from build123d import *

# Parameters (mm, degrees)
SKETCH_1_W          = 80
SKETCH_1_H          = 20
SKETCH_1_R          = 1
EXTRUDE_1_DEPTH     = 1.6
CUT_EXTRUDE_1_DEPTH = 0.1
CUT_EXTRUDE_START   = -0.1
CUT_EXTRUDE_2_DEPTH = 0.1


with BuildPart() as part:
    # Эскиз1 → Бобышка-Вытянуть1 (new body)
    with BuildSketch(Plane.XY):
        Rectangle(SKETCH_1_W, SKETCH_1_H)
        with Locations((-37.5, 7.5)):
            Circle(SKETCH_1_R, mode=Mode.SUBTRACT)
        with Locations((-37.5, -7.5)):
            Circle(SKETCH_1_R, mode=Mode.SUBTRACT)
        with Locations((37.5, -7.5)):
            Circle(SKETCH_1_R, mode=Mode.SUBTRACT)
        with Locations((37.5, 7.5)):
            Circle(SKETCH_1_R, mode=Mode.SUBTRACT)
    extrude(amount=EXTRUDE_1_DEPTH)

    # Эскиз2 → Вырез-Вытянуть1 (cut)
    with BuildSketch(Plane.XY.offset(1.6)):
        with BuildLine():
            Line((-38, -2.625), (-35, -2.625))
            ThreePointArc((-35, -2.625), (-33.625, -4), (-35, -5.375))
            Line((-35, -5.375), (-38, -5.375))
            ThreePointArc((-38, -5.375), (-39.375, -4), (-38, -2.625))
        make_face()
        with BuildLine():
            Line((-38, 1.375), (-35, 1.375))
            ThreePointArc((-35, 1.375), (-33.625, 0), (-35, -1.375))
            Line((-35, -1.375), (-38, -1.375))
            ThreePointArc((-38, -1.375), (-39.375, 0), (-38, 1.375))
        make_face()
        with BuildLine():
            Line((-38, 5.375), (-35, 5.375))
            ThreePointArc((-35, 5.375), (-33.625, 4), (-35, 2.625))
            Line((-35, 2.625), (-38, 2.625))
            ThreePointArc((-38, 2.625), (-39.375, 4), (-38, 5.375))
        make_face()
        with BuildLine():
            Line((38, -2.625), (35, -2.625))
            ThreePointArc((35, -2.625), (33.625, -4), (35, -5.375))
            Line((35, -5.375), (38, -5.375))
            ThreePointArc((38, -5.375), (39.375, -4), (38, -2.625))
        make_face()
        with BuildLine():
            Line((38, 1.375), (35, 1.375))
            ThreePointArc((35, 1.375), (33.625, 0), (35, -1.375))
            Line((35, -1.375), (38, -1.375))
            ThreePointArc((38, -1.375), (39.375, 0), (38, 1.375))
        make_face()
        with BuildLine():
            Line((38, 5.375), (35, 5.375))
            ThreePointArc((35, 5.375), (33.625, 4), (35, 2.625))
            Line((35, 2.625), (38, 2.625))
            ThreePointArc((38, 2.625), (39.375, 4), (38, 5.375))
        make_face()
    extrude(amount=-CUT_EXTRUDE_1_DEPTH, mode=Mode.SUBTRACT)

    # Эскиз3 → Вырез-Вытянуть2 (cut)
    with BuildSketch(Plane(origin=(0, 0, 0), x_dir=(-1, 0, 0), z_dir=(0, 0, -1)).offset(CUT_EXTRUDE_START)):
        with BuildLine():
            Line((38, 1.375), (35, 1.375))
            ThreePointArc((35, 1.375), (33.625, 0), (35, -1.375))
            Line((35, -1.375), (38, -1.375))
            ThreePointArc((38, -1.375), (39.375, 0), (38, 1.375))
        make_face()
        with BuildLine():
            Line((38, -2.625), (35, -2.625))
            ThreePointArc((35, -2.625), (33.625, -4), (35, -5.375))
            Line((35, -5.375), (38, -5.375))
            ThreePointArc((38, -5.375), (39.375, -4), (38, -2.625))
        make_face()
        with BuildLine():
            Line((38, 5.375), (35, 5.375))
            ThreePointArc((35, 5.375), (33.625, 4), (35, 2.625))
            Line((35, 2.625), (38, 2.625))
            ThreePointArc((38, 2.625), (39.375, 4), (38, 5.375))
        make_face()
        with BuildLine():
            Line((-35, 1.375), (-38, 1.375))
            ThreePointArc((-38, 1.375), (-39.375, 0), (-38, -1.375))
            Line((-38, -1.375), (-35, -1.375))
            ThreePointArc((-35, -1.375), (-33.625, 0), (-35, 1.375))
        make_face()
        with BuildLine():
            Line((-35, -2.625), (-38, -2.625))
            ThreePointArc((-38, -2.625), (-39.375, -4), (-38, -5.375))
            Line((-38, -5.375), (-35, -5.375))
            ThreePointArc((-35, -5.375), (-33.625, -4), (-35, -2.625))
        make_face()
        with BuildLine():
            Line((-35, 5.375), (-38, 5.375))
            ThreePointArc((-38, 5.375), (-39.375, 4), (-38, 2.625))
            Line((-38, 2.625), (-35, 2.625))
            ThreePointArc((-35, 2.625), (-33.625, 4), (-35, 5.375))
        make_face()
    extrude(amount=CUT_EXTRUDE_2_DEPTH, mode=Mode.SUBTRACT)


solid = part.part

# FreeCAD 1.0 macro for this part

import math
import FreeCAD as App
import Part
import Sketcher

V = App.Vector

doc = App.newDocument("Part")
params = doc.addObject("Spreadsheet::Sheet", "Params")
for row, (alias, value) in enumerate([
    ("sketch1_diameter", "2 mm"),
    ("sketch1_width", "80 mm"),
    ("sketch1_height", "20 mm"),
    ("pad1_length", "1.6 mm"),
    ("sketch2_width", "3 mm"),
    ("pocket1_length", "0.1 mm"),
    ("sketch3_width", "3 mm"),
    ("pocket2_length", "0.1 mm"),
], start=1):
    params.set(f"A{row}", alias)
    params.set(f"B{row}", "=" + value)
    params.setAlias(f"B{row}", alias)

body = doc.addObject("PartDesign::Body", "Body")

sketch1 = doc.addObject("Sketcher::SketchObject", "Sketch")
body.addObject(sketch1)
sketch1.AttachmentSupport = (doc.XY_Plane, [""])
sketch1.MapMode = "FlatFace"
sketch1.addGeometry([
    Part.LineSegment(V(-40, 10, 0), V(-40, -10, 0)),
    Part.LineSegment(V(-40, -10, 0), V(40, -10, 0)),
    Part.LineSegment(V(40, -10, 0), V(40, 10, 0)),
    Part.LineSegment(V(40, 10, 0), V(-40, 10, 0)),
    Part.Circle(V(-37.5, -7.5, 0), V(0, 0, 1), 1),
    Part.Circle(V(37.5, -7.5, 0), V(0, 0, 1), 1),
    Part.Circle(V(-37.5, 7.5, 0), V(0, 0, 1), 1),
    Part.Circle(V(37.5, 7.5, 0), V(0, 0, 1), 1),
], False)
sketch1.addConstraint([
    Sketcher.Constraint("Coincident", 0, 2, 1, 1),
    Sketcher.Constraint("Coincident", 1, 2, 2, 1),
    Sketcher.Constraint("Coincident", 2, 2, 3, 1),
    Sketcher.Constraint("Coincident", 3, 2, 0, 1),
    Sketcher.Constraint("Vertical", 0),
    Sketcher.Constraint("Horizontal", 1),
    Sketcher.Constraint("Vertical", 2),
    Sketcher.Constraint("Horizontal", 3),
    Sketcher.Constraint("Equal", 4, 5),
    Sketcher.Constraint("Equal", 5, 6),
    Sketcher.Constraint("Equal", 6, 7),
    Sketcher.Constraint("Symmetric", 5, 3, 6, 3, -1, 1),
    Sketcher.Constraint("Symmetric", 4, 3, 7, 3, -1, 1),
    Sketcher.Constraint("Symmetric", 0, 2, 2, 2, -1, 1),
    Sketcher.Constraint("Symmetric", 4, 3, 5, 3, -2),
    Sketcher.Constraint("Diameter", 4, 2.0),
    Sketcher.Constraint("DistanceX", 1, 1, 1, 2, 80.0),
    Sketcher.Constraint("DistanceY", 0, 2, 0, 1, 20.0),
    Sketcher.Constraint("DistanceX", 4, 3, 5, 3, 75.0),
    Sketcher.Constraint("DistanceY", 4, 3, 6, 3, 15.0),
])
sketch1.setExpression("Constraints[15]", "Params.sketch1_diameter")
sketch1.setExpression("Constraints[16]", "Params.sketch1_width")
sketch1.setExpression("Constraints[17]", "Params.sketch1_height")
pad1 = doc.addObject("PartDesign::Pad", "Pad")
body.addObject(pad1)
pad1.Profile = sketch1
pad1.setExpression("Length", "Params.pad1_length")

sketch2 = doc.addObject("Sketcher::SketchObject", "Sketch001")
body.addObject(sketch2)
sketch2.AttachmentSupport = (doc.XY_Plane, [""])
sketch2.MapMode = "FlatFace"
sketch2.AttachmentOffset = App.Placement(V(0, 0, 1.6), App.Rotation())
sketch2.addGeometry([
    Part.LineSegment(V(-35, -2.6, 0), V(-38, -2.6, 0)),
    Part.ArcOfCircle(Part.Circle(V(-38, -4, 0), V(0, 0, 1), 1.4), math.radians(90), math.radians(270)),
    Part.LineSegment(V(-38, -5.4, 0), V(-35, -5.4, 0)),
    Part.ArcOfCircle(Part.Circle(V(-35, -4, 0), V(0, 0, 1), 1.4), math.radians(-90), math.radians(90)),
    Part.LineSegment(V(-35, 1.4, 0), V(-38, 1.4, 0)),
    Part.ArcOfCircle(Part.Circle(V(-38, 0, 0), V(0, 0, 1), 1.4), math.radians(90), math.radians(270)),
    Part.LineSegment(V(-38, -1.4, 0), V(-35, -1.4, 0)),
    Part.ArcOfCircle(Part.Circle(V(-35, 0, 0), V(0, 0, 1), 1.4), math.radians(-90), math.radians(90)),
    Part.LineSegment(V(-35, 5.4, 0), V(-38, 5.4, 0)),
    Part.ArcOfCircle(Part.Circle(V(-38, 4, 0), V(0, 0, 1), 1.4), math.radians(90), math.radians(270)),
    Part.LineSegment(V(-38, 2.6, 0), V(-35, 2.6, 0)),
    Part.ArcOfCircle(Part.Circle(V(-35, 4, 0), V(0, 0, 1), 1.4), math.radians(-90), math.radians(90)),
    Part.LineSegment(V(38, -2.6, 0), V(35, -2.6, 0)),
    Part.ArcOfCircle(Part.Circle(V(35, -4, 0), V(0, 0, 1), 1.4), math.radians(90), math.radians(270)),
    Part.LineSegment(V(35, -5.4, 0), V(38, -5.4, 0)),
    Part.ArcOfCircle(Part.Circle(V(38, -4, 0), V(0, 0, 1), 1.4), math.radians(-90), math.radians(90)),
    Part.LineSegment(V(38, 1.4, 0), V(35, 1.4, 0)),
    Part.ArcOfCircle(Part.Circle(V(35, 0, 0), V(0, 0, 1), 1.4), math.radians(90), math.radians(270)),
    Part.LineSegment(V(35, -1.4, 0), V(38, -1.4, 0)),
    Part.ArcOfCircle(Part.Circle(V(38, 0, 0), V(0, 0, 1), 1.4), math.radians(-90), math.radians(90)),
    Part.LineSegment(V(38, 5.4, 0), V(35, 5.4, 0)),
    Part.ArcOfCircle(Part.Circle(V(35, 4, 0), V(0, 0, 1), 1.4), math.radians(90), math.radians(270)),
    Part.LineSegment(V(35, 2.6, 0), V(38, 2.6, 0)),
    Part.ArcOfCircle(Part.Circle(V(38, 4, 0), V(0, 0, 1), 1.4), math.radians(-90), math.radians(90)),
], False)
sketch2.addConstraint([
    Sketcher.Constraint("Tangent", 0, 2, 1, 1),
    Sketcher.Constraint("Tangent", 1, 2, 2, 1),
    Sketcher.Constraint("Tangent", 2, 2, 3, 1),
    Sketcher.Constraint("Tangent", 3, 2, 0, 1),
    Sketcher.Constraint("Tangent", 4, 2, 5, 1),
    Sketcher.Constraint("Tangent", 5, 2, 6, 1),
    Sketcher.Constraint("Tangent", 6, 2, 7, 1),
    Sketcher.Constraint("Tangent", 7, 2, 4, 1),
    Sketcher.Constraint("Tangent", 8, 2, 9, 1),
    Sketcher.Constraint("Tangent", 9, 2, 10, 1),
    Sketcher.Constraint("Tangent", 10, 2, 11, 1),
    Sketcher.Constraint("Tangent", 11, 2, 8, 1),
    Sketcher.Constraint("Tangent", 12, 2, 13, 1),
    Sketcher.Constraint("Tangent", 13, 2, 14, 1),
    Sketcher.Constraint("Tangent", 14, 2, 15, 1),
    Sketcher.Constraint("Tangent", 15, 2, 12, 1),
    Sketcher.Constraint("Tangent", 16, 2, 17, 1),
    Sketcher.Constraint("Tangent", 17, 2, 18, 1),
    Sketcher.Constraint("Tangent", 18, 2, 19, 1),
    Sketcher.Constraint("Tangent", 19, 2, 16, 1),
    Sketcher.Constraint("Tangent", 20, 2, 21, 1),
    Sketcher.Constraint("Tangent", 21, 2, 22, 1),
    Sketcher.Constraint("Tangent", 22, 2, 23, 1),
    Sketcher.Constraint("Tangent", 23, 2, 20, 1),
    Sketcher.Constraint("Horizontal", 0),
    Sketcher.Constraint("Horizontal", 2),
    Sketcher.Constraint("Horizontal", 4),
    Sketcher.Constraint("Horizontal", 6),
    Sketcher.Constraint("Horizontal", 8),
    Sketcher.Constraint("Horizontal", 10),
    Sketcher.Constraint("Horizontal", 12),
    Sketcher.Constraint("Horizontal", 14),
    Sketcher.Constraint("Horizontal", 16),
    Sketcher.Constraint("Horizontal", 18),
    Sketcher.Constraint("Horizontal", 20),
    Sketcher.Constraint("Horizontal", 22),
    Sketcher.Constraint("Equal", 3, 5),
    Sketcher.Constraint("Equal", 7, 9),
    Sketcher.Constraint("Equal", 11, 13),
    Sketcher.Constraint("Equal", 15, 17),
    Sketcher.Constraint("Equal", 19, 21),
    Sketcher.Constraint("Symmetric", 11, 3, 13, 3, -1, 1),
    Sketcher.Constraint("Symmetric", 7, 3, 17, 3, -1, 1),
    Sketcher.Constraint("Symmetric", 3, 3, 21, 3, -1, 1),
    Sketcher.Constraint("Symmetric", 3, 3, 13, 3, -2),
    Sketcher.Constraint("Symmetric", 5, 3, 19, 3, -2),
    Sketcher.Constraint("Vertical", 1, 3, 5, 3),
    Sketcher.Constraint("Vertical", 3, 3, 7, 3),
    Sketcher.Constraint("Vertical", 5, 3, 9, 3),
    Sketcher.Constraint("Vertical", 15, 3, 19, 3),
    Sketcher.Constraint("Vertical", 19, 3, 23, 3),
    Sketcher.Constraint("DistanceX", 0, 2, 0, 1, 3.0),
    Sketcher.Constraint("DistanceX", 1, 3, -1, 1, 38.0),
    Sketcher.Constraint("DistanceY", 1, 3, -1, 1, 4.0),
    Sketcher.Constraint("Radius", 1, 1.375),
])
sketch2.setExpression("Constraints[51]", "Params.sketch2_width")
pocket1 = doc.addObject("PartDesign::Pocket", "Pocket")
body.addObject(pocket1)
pocket1.Profile = sketch2
pocket1.setExpression("Length", "Params.pocket1_length")

sketch3 = doc.addObject("Sketcher::SketchObject", "Sketch002")
body.addObject(sketch3)
sketch3.AttachmentSupport = (doc.XY_Plane, [""])
sketch3.MapMode = "FlatFace"
sketch3.AttachmentOffset = App.Placement(V(0, 0, 0.1), App.Rotation())
sketch3.addGeometry([
    Part.LineSegment(V(-38, 1.4, 0), V(-35, 1.4, 0)),
    Part.ArcOfCircle(Part.Circle(V(-35, 0, 0), V(0, 0, 1), 1.4), math.radians(-90), math.radians(90)),
    Part.LineSegment(V(-35, -1.4, 0), V(-38, -1.4, 0)),
    Part.ArcOfCircle(Part.Circle(V(-38, 0, 0), V(0, 0, 1), 1.4), math.radians(90), math.radians(270)),
    Part.LineSegment(V(-38, -2.6, 0), V(-35, -2.6, 0)),
    Part.ArcOfCircle(Part.Circle(V(-35, -4, 0), V(0, 0, 1), 1.4), math.radians(-90), math.radians(90)),
    Part.LineSegment(V(-35, -5.4, 0), V(-38, -5.4, 0)),
    Part.ArcOfCircle(Part.Circle(V(-38, -4, 0), V(0, 0, 1), 1.4), math.radians(90), math.radians(270)),
    Part.LineSegment(V(-38, 5.4, 0), V(-35, 5.4, 0)),
    Part.ArcOfCircle(Part.Circle(V(-35, 4, 0), V(0, 0, 1), 1.4), math.radians(-90), math.radians(90)),
    Part.LineSegment(V(-35, 2.6, 0), V(-38, 2.6, 0)),
    Part.ArcOfCircle(Part.Circle(V(-38, 4, 0), V(0, 0, 1), 1.4), math.radians(90), math.radians(270)),
    Part.LineSegment(V(35, 1.4, 0), V(38, 1.4, 0)),
    Part.ArcOfCircle(Part.Circle(V(38, 0, 0), V(0, 0, 1), 1.4), math.radians(-90), math.radians(90)),
    Part.LineSegment(V(38, -1.4, 0), V(35, -1.4, 0)),
    Part.ArcOfCircle(Part.Circle(V(35, 0, 0), V(0, 0, 1), 1.4), math.radians(90), math.radians(270)),
    Part.LineSegment(V(35, -2.6, 0), V(38, -2.6, 0)),
    Part.ArcOfCircle(Part.Circle(V(38, -4, 0), V(0, 0, 1), 1.4), math.radians(-90), math.radians(90)),
    Part.LineSegment(V(38, -5.4, 0), V(35, -5.4, 0)),
    Part.ArcOfCircle(Part.Circle(V(35, -4, 0), V(0, 0, 1), 1.4), math.radians(90), math.radians(270)),
    Part.LineSegment(V(35, 5.4, 0), V(38, 5.4, 0)),
    Part.ArcOfCircle(Part.Circle(V(38, 4, 0), V(0, 0, 1), 1.4), math.radians(-90), math.radians(90)),
    Part.LineSegment(V(38, 2.6, 0), V(35, 2.6, 0)),
    Part.ArcOfCircle(Part.Circle(V(35, 4, 0), V(0, 0, 1), 1.4), math.radians(90), math.radians(270)),
], False)
sketch3.addConstraint([
    Sketcher.Constraint("Tangent", 0, 2, 1, 2),
    Sketcher.Constraint("Tangent", 1, 1, 2, 1),
    Sketcher.Constraint("Tangent", 2, 2, 3, 2),
    Sketcher.Constraint("Tangent", 3, 1, 0, 1),
    Sketcher.Constraint("Tangent", 4, 2, 5, 2),
    Sketcher.Constraint("Tangent", 5, 1, 6, 1),
    Sketcher.Constraint("Tangent", 6, 2, 7, 2),
    Sketcher.Constraint("Tangent", 7, 1, 4, 1),
    Sketcher.Constraint("Tangent", 8, 2, 9, 2),
    Sketcher.Constraint("Tangent", 9, 1, 10, 1),
    Sketcher.Constraint("Tangent", 10, 2, 11, 2),
    Sketcher.Constraint("Tangent", 11, 1, 8, 1),
    Sketcher.Constraint("Tangent", 12, 2, 13, 2),
    Sketcher.Constraint("Tangent", 13, 1, 14, 1),
    Sketcher.Constraint("Tangent", 14, 2, 15, 2),
    Sketcher.Constraint("Tangent", 15, 1, 12, 1),
    Sketcher.Constraint("Tangent", 16, 2, 17, 2),
    Sketcher.Constraint("Tangent", 17, 1, 18, 1),
    Sketcher.Constraint("Tangent", 18, 2, 19, 2),
    Sketcher.Constraint("Tangent", 19, 1, 16, 1),
    Sketcher.Constraint("Tangent", 20, 2, 21, 2),
    Sketcher.Constraint("Tangent", 21, 1, 22, 1),
    Sketcher.Constraint("Tangent", 22, 2, 23, 2),
    Sketcher.Constraint("Tangent", 23, 1, 20, 1),
    Sketcher.Constraint("Horizontal", 0),
    Sketcher.Constraint("Horizontal", 2),
    Sketcher.Constraint("Horizontal", 4),
    Sketcher.Constraint("Horizontal", 6),
    Sketcher.Constraint("Horizontal", 8),
    Sketcher.Constraint("Horizontal", 10),
    Sketcher.Constraint("Horizontal", 12),
    Sketcher.Constraint("Horizontal", 14),
    Sketcher.Constraint("Horizontal", 16),
    Sketcher.Constraint("Horizontal", 18),
    Sketcher.Constraint("Horizontal", 20),
    Sketcher.Constraint("Horizontal", 22),
    Sketcher.Constraint("Equal", 3, 5),
    Sketcher.Constraint("Equal", 7, 9),
    Sketcher.Constraint("Equal", 11, 13),
    Sketcher.Constraint("Equal", 15, 17),
    Sketcher.Constraint("Equal", 19, 21),
    Sketcher.Constraint("Symmetric", 3, 3, 13, 3, -1, 1),
    Sketcher.Constraint("Symmetric", 11, 3, 17, 3, -1, 1),
    Sketcher.Constraint("Symmetric", 7, 3, 21, 3, -1, 1),
    Sketcher.Constraint("Symmetric", 1, 3, 15, 3, -2),
    Sketcher.Constraint("Symmetric", 7, 3, 17, 3, -2),
    Sketcher.Constraint("Vertical", 1, 3, 5, 3),
    Sketcher.Constraint("Vertical", 3, 3, 7, 3),
    Sketcher.Constraint("Vertical", 5, 3, 9, 3),
    Sketcher.Constraint("Vertical", 15, 3, 19, 3),
    Sketcher.Constraint("Vertical", 19, 3, 23, 3),
    Sketcher.Constraint("DistanceX", 0, 1, 0, 2, 3.0),
    Sketcher.Constraint("DistanceX", 1, 3, -1, 1, 35.0),
    Sketcher.Constraint("DistanceY", 5, 3, -1, 1, 4.0),
    Sketcher.Constraint("Radius", 1, 1.375),
])
sketch3.setExpression("Constraints[51]", "Params.sketch3_width")
pocket2 = doc.addObject("PartDesign::Pocket", "Pocket001")
body.addObject(pocket2)
pocket2.Profile = sketch3
pocket2.setExpression("Length", "Params.pocket2_length")

doc.recompute()
